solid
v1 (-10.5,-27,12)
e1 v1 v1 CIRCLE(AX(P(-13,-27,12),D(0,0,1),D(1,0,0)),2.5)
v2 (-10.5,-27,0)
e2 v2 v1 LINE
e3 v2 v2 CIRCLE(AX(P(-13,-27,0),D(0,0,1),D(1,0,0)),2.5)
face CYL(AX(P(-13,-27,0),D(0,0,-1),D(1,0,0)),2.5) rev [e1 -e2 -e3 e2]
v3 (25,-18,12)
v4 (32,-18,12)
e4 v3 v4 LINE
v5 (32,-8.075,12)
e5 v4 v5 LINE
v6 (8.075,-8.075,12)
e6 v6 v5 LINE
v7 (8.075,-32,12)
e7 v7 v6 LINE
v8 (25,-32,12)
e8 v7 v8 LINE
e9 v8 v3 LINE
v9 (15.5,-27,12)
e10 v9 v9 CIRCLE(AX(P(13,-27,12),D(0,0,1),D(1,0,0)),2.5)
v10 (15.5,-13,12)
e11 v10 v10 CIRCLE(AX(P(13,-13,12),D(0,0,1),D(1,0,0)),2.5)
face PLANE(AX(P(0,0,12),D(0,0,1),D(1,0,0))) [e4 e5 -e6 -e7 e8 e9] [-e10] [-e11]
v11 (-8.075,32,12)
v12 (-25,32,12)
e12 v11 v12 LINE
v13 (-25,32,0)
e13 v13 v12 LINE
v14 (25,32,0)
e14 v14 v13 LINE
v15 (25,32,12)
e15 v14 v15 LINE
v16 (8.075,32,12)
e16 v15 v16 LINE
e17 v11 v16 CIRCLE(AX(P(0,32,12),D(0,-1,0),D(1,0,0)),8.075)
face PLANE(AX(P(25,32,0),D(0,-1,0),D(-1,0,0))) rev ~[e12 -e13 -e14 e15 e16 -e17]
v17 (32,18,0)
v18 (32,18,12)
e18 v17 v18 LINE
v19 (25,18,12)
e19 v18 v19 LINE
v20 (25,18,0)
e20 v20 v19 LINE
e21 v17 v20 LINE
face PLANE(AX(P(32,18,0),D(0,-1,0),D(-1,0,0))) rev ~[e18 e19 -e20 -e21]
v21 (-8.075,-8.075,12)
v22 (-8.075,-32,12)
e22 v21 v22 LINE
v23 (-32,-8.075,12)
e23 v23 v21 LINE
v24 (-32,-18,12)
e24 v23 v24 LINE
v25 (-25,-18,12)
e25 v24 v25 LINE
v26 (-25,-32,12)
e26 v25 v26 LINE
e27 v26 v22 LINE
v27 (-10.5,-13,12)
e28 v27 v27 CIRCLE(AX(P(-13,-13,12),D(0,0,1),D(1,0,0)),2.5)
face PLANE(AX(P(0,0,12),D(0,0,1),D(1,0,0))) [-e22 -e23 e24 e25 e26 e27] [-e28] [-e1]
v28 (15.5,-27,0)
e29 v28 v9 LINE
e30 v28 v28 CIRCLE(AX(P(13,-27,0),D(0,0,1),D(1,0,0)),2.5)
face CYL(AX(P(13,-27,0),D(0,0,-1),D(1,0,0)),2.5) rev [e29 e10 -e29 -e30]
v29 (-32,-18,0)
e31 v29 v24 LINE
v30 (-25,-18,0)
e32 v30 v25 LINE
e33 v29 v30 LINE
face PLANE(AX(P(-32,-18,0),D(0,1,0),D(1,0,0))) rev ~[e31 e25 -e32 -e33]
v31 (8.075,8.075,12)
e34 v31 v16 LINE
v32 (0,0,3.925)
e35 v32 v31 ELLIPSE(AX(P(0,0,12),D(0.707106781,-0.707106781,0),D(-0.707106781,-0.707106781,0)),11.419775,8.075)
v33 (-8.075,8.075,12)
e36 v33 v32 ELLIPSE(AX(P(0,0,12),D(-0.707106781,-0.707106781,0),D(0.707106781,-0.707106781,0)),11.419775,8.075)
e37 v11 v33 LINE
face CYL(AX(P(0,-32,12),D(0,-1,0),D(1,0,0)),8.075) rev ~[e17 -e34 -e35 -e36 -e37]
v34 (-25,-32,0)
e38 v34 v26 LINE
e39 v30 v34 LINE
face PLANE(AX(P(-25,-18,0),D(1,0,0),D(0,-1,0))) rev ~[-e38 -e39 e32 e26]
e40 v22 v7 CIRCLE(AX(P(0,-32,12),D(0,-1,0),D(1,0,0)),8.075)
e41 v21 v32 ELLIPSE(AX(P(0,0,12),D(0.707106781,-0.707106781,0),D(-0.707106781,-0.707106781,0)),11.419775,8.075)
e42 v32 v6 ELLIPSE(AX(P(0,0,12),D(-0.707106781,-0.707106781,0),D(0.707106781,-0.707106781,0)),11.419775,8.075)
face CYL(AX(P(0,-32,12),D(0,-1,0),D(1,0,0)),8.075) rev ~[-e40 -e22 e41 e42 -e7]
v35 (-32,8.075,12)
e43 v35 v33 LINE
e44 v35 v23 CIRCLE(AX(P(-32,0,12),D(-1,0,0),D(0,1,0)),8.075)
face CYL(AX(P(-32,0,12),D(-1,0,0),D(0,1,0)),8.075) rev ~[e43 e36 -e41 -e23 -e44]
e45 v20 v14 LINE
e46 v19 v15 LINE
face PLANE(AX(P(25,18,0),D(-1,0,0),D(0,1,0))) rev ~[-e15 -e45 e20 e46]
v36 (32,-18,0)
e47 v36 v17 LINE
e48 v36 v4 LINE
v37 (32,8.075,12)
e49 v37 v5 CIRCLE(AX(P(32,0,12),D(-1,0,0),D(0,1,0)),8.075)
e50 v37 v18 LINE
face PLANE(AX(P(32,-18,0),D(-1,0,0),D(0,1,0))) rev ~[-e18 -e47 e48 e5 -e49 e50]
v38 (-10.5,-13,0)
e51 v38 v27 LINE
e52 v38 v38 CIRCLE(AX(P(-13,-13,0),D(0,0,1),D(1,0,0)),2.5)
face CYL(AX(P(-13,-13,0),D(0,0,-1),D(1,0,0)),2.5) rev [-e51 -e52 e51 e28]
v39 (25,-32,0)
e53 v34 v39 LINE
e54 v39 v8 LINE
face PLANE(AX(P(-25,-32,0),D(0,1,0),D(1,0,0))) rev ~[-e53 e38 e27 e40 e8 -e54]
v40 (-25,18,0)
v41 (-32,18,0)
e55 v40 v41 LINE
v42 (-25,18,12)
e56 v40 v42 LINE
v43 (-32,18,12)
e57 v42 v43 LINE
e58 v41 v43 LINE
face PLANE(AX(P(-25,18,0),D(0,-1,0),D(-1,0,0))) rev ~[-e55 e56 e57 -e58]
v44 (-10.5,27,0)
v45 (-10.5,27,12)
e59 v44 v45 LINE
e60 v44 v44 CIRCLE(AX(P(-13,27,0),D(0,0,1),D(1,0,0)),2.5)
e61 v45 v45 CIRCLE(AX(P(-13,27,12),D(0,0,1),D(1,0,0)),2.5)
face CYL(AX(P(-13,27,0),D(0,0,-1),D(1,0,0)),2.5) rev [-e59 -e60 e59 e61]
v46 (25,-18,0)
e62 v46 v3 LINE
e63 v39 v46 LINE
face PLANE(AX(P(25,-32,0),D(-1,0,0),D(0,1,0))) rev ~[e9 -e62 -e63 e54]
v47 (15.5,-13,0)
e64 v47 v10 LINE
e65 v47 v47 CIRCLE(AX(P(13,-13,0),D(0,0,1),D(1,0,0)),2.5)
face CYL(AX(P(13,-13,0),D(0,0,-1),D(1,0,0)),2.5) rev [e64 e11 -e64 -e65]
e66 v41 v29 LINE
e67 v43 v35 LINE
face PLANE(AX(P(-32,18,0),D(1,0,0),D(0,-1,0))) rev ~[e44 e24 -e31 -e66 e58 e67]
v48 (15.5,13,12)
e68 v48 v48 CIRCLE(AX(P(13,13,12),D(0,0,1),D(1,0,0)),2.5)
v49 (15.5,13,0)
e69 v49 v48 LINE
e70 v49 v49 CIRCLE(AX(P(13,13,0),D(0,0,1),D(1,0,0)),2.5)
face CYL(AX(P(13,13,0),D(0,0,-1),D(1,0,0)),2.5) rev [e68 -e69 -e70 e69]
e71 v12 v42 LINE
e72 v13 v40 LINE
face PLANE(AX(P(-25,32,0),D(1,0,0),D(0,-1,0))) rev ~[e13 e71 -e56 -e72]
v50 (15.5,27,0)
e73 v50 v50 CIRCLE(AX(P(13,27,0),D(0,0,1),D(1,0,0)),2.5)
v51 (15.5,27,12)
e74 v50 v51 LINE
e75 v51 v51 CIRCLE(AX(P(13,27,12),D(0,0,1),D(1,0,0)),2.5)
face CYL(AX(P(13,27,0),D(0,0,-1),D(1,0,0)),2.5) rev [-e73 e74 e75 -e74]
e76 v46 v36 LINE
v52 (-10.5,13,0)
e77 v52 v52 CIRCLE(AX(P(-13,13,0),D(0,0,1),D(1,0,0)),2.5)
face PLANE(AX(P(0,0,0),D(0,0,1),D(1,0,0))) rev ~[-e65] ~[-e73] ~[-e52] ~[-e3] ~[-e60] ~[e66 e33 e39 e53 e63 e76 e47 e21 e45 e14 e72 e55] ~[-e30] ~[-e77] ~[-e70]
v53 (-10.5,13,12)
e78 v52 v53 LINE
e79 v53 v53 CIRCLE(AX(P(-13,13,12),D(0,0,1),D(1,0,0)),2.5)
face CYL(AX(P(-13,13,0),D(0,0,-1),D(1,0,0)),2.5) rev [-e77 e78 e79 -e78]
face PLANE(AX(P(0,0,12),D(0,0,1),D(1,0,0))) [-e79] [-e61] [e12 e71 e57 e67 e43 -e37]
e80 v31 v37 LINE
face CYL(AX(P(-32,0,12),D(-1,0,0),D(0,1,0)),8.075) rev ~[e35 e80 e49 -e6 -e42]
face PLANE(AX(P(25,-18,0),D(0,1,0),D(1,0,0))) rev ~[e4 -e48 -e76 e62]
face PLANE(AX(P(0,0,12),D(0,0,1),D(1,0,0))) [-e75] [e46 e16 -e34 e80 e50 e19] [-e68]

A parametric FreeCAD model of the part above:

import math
import FreeCAD as App
import Part
import Sketcher
from FreeCAD import Vector
Q = App.Units.Quantity

doc = App.newDocument("Part")
body = doc.addObject("PartDesign::Body", "Body")

sketch1 = body.newObject("Sketcher::SketchObject", "Sketch")
sketch1.AttachmentSupport = (doc.getObject("XY_Plane"), [""])
sketch1.MapMode = "FlatFace"
sketch1.addGeometry([
    Part.LineSegment(Vector(-25, -32, 0), Vector(25, -32, 0)),
    Part.LineSegment(Vector(25, -32, 0), Vector(25, -18, 0)),
    Part.LineSegment(Vector(25, -18, 0), Vector(32, -18, 0)),
    Part.LineSegment(Vector(32, -18, 0), Vector(32, 18, 0)),
    Part.LineSegment(Vector(32, 18, 0), Vector(25, 18, 0)),
    Part.LineSegment(Vector(25, 18, 0), Vector(25, 32, 0)),
    Part.LineSegment(Vector(25, 32, 0), Vector(-25, 32, 0)),
    Part.LineSegment(Vector(-25, 32, 0), Vector(-25, 18, 0)),
    Part.LineSegment(Vector(-25, 18, 0), Vector(-32, 18, 0)),
    Part.LineSegment(Vector(-32, 18, 0), Vector(-32, -18, 0)),
    Part.LineSegment(Vector(-32, -18, 0), Vector(-25, -18, 0)),
    Part.LineSegment(Vector(-25, -18, 0), Vector(-25, -32, 0)),
    Part.Circle(Vector(-13, -27, 0), Vector(0, 0, 1), 2.5),
    Part.Circle(Vector(-13, -13, 0), Vector(0, 0, 1), 2.5),
    Part.Circle(Vector(13, -27, 0), Vector(0, 0, 1), 2.5),
    Part.Circle(Vector(13, -13, 0), Vector(0, 0, 1), 2.5),
    Part.Circle(Vector(-13, 13, 0), Vector(0, 0, 1), 2.5),
    Part.Circle(Vector(-13, 27, 0), Vector(0, 0, 1), 2.5),
    Part.Circle(Vector(13, 13, 0), Vector(0, 0, 1), 2.5),
    Part.Circle(Vector(13, 27, 0), Vector(0, 0, 1), 2.5),
], False)
sketch1.addConstraint([
    Sketcher.Constraint("Coincident", 0, 2, 1, 1),
    Sketcher.Constraint("Coincident", 1, 2, 2, 1),
    Sketcher.Constraint("Coincident", 2, 2, 3, 1),
    Sketcher.Constraint("Coincident", 3, 2, 4, 1),
    Sketcher.Constraint("Coincident", 4, 2, 5, 1),
    Sketcher.Constraint("Coincident", 5, 2, 6, 1),
    Sketcher.Constraint("Coincident", 6, 2, 7, 1),
    Sketcher.Constraint("Coincident", 7, 2, 8, 1),
    Sketcher.Constraint("Coincident", 8, 2, 9, 1),
    Sketcher.Constraint("Coincident", 9, 2, 10, 1),
    Sketcher.Constraint("Coincident", 10, 2, 11, 1),
    Sketcher.Constraint("Coincident", 11, 2, 0, 1),
    Sketcher.Constraint("Horizontal", 0),
    Sketcher.Constraint("Vertical", 1),
    Sketcher.Constraint("Horizontal", 2),
    Sketcher.Constraint("Vertical", 3),
    Sketcher.Constraint("Horizontal", 4),
    Sketcher.Constraint("Vertical", 5),
    Sketcher.Constraint("Horizontal", 6),
    Sketcher.Constraint("Vertical", 7),
    Sketcher.Constraint("Horizontal", 8),
    Sketcher.Constraint("Vertical", 9),
    Sketcher.Constraint("Horizontal", 10),
    Sketcher.Constraint("Vertical", 11),
    Sketcher.Constraint("Equal", 12, 13),
    Sketcher.Constraint("Equal", 13, 14),
    Sketcher.Constraint("Equal", 14, 15),
    Sketcher.Constraint("Equal", 15, 16),
    Sketcher.Constraint("Equal", 16, 17),
    Sketcher.Constraint("Equal", 17, 18),
    Sketcher.Constraint("Equal", 18, 19),
    Sketcher.Constraint("Symmetric", 15, 3, 16, 3, -1, 1),
    Sketcher.Constraint("Symmetric", 14, 3, 17, 3, -1, 1),
    Sketcher.Constraint("Symmetric", 13, 3, 18, 3, -1, 1),
    Sketcher.Constraint("Symmetric", 12, 3, 19, 3, -1, 1),
    Sketcher.Constraint("Symmetric", 0, 2, 6, 2, -1, 1),
    Sketcher.Constraint("Symmetric", 2, 2, 8, 2, -1, 1),
    Sketcher.Constraint("Symmetric", 4, 2, 10, 2, -1, 1),
    Sketcher.Constraint("Symmetric", 12, 3, 14, 3, -2),
    Sketcher.Constraint("Symmetric", 13, 3, 15, 3, -2),
    Sketcher.Constraint("Symmetric", 4, 2, 7, 2, -2),
    Sketcher.Constraint("Vertical", 12, 3, 13, 3),
    Sketcher.Constraint("Diameter", 12, Q("5 mm")),
    Sketcher.Constraint("DistanceX", 0, 1, 0, 2, Q("50 mm")),
    Sketcher.Constraint("DistanceX", 2, 1, 2, 2, Q("7 mm")),
    Sketcher.Constraint("DistanceY", 1, 1, 1, 2, Q("14 mm")),
    Sketcher.Constraint("DistanceY", 3, 1, 3, 2, Q("36 mm")),
    Sketcher.Constraint("DistanceX", 12, 3, -1, 1, Q("13 mm")),
    Sketcher.Constraint("DistanceY", 12, 3, -1, 1, Q("27 mm")),
    Sketcher.Constraint("DistanceY", 13, 3, -1, 1, Q("13 mm")),
])
pad1 = body.newObject("PartDesign::Pad", "Pad")
pad1.Profile = sketch1
pad1.Length = 12

sketch2 = body.newObject("Sketcher::SketchObject", "Sketch001")
sketch2.AttachmentSupport = (doc.getObject("XY_Plane"), [""])
sketch2.MapMode = "FlatFace"
sketch2.addGeometry([
    Part.LineSegment(Vector(25, -18, 0), Vector(25, -32, 0)),
    Part.LineSegment(Vector(25, -32, 0), Vector(32, -32, 0)),
    Part.LineSegment(Vector(32, -32, 0), Vector(32, -18, 0)),
    Part.LineSegment(Vector(32, -18, 0), Vector(25, -18, 0)),
    Part.LineSegment(Vector(-32, -18, 0), Vector(-32, -32, 0)),
    Part.LineSegment(Vector(-32, -32, 0), Vector(-25, -32, 0)),
    Part.LineSegment(Vector(-25, -32, 0), Vector(-25, -18, 0)),
    Part.LineSegment(Vector(-25, -18, 0), Vector(-32, -18, 0)),
], False)
sketch2.addConstraint([
    Sketcher.Constraint("Coincident", 0, 2, 1, 1),
    Sketcher.Constraint("Coincident", 1, 2, 2, 1),
    Sketcher.Constraint("Coincident", 2, 2, 3, 1),
    Sketcher.Constraint("Coincident", 3, 2, 0, 1),
    Sketcher.Constraint("Coincident", 4, 2, 5, 1),
    Sketcher.Constraint("Coincident", 5, 2, 6, 1),
    Sketcher.Constraint("Coincident", 6, 2, 7, 1),
    Sketcher.Constraint("Coincident", 7, 2, 4, 1),
    Sketcher.Constraint("Vertical", 0),
    Sketcher.Constraint("Horizontal", 1),
    Sketcher.Constraint("Vertical", 2),
    Sketcher.Constraint("Horizontal", 3),
    Sketcher.Constraint("Vertical", 4),
    Sketcher.Constraint("Horizontal", 5),
    Sketcher.Constraint("Vertical", 6),
    Sketcher.Constraint("Horizontal", 7),
    Sketcher.Constraint("Symmetric", 1, 2, 4, 2, -2),
    Sketcher.Constraint("Symmetric", 3, 2, 6, 2, -2),
    Sketcher.Constraint("DistanceX", 1, 1, 1, 2, Q("7 mm")),
    Sketcher.Constraint("DistanceY", 0, 2, 0, 1, Q("14 mm")),
    Sketcher.Constraint("DistanceX", -1, 1, 0, 2, Q("25 mm")),
    Sketcher.Constraint("DistanceY", 0, 2, -1, 1, Q("32 mm")),
])
pocket1 = body.newObject("PartDesign::Pocket", "Pocket")
pocket1.Profile = sketch2
pocket1.Type = "ThroughAll"
pocket1.Reversed = True

sketch3 = body.newObject("Sketcher::SketchObject", "Sketch002")
sketch3.AttachmentSupport = (doc.getObject("XZ_Plane"), [""])
sketch3.MapMode = "FlatFace"
sketch3.AttachmentOffset = App.Placement(Vector(0, 0, 32), App.Rotation())
sketch3.addGeometry(Part.Circle(Vector(0, 12, 0), Vector(0, 0, 1), 8), False)
sketch3.addConstraint([
    Sketcher.Constraint("PointOnObject", 0, 3, -2),
    Sketcher.Constraint("Diameter", 0, Q("16.15 mm")),
    Sketcher.Constraint("DistanceY", -1, 1, 0, 3, Q("12 mm")),
])
pocket2 = body.newObject("PartDesign::Pocket", "Pocket001")
pocket2.Profile = sketch3
pocket2.Type = "ThroughAll"

sketch4 = body.newObject("Sketcher::SketchObject", "Sketch003")
sketch4.AttachmentSupport = (doc.getObject("YZ_Plane"), [""])
sketch4.MapMode = "FlatFace"
sketch4.AttachmentOffset = App.Placement(Vector(0, 0, -32), App.Rotation())
sketch4.addGeometry([
    Part.ArcOfCircle(Part.Circle(Vector(0, 12, 0), Vector(0, 0, 1), 8), math.radians(180), math.radians(360)),
    Part.LineSegment(Vector(-8, 12, 0), Vector(8, 12, 0)),
], False)
sketch4.addConstraint([
    Sketcher.Constraint("Coincident", 0, 1, 1, 1),
    Sketcher.Constraint("Coincident", 1, 2, 0, 2),
    Sketcher.Constraint("Horizontal", 1),
    Sketcher.Constraint("PointOnObject", 0, 3, -2),
    Sketcher.Constraint("DistanceY", -1, 1, 0, 3, Q("12 mm")),
    Sketcher.Constraint("DistanceY", -1, 1, 0, 1, Q("12 mm")),
    Sketcher.Constraint("Radius", 0, Q("8.075 mm")),
])
pocket3 = body.newObject("PartDesign::Pocket", "Pocket002")
pocket3.Profile = sketch4
pocket3.Type = "ThroughAll"
pocket3.Reversed = True

doc.recompute()
